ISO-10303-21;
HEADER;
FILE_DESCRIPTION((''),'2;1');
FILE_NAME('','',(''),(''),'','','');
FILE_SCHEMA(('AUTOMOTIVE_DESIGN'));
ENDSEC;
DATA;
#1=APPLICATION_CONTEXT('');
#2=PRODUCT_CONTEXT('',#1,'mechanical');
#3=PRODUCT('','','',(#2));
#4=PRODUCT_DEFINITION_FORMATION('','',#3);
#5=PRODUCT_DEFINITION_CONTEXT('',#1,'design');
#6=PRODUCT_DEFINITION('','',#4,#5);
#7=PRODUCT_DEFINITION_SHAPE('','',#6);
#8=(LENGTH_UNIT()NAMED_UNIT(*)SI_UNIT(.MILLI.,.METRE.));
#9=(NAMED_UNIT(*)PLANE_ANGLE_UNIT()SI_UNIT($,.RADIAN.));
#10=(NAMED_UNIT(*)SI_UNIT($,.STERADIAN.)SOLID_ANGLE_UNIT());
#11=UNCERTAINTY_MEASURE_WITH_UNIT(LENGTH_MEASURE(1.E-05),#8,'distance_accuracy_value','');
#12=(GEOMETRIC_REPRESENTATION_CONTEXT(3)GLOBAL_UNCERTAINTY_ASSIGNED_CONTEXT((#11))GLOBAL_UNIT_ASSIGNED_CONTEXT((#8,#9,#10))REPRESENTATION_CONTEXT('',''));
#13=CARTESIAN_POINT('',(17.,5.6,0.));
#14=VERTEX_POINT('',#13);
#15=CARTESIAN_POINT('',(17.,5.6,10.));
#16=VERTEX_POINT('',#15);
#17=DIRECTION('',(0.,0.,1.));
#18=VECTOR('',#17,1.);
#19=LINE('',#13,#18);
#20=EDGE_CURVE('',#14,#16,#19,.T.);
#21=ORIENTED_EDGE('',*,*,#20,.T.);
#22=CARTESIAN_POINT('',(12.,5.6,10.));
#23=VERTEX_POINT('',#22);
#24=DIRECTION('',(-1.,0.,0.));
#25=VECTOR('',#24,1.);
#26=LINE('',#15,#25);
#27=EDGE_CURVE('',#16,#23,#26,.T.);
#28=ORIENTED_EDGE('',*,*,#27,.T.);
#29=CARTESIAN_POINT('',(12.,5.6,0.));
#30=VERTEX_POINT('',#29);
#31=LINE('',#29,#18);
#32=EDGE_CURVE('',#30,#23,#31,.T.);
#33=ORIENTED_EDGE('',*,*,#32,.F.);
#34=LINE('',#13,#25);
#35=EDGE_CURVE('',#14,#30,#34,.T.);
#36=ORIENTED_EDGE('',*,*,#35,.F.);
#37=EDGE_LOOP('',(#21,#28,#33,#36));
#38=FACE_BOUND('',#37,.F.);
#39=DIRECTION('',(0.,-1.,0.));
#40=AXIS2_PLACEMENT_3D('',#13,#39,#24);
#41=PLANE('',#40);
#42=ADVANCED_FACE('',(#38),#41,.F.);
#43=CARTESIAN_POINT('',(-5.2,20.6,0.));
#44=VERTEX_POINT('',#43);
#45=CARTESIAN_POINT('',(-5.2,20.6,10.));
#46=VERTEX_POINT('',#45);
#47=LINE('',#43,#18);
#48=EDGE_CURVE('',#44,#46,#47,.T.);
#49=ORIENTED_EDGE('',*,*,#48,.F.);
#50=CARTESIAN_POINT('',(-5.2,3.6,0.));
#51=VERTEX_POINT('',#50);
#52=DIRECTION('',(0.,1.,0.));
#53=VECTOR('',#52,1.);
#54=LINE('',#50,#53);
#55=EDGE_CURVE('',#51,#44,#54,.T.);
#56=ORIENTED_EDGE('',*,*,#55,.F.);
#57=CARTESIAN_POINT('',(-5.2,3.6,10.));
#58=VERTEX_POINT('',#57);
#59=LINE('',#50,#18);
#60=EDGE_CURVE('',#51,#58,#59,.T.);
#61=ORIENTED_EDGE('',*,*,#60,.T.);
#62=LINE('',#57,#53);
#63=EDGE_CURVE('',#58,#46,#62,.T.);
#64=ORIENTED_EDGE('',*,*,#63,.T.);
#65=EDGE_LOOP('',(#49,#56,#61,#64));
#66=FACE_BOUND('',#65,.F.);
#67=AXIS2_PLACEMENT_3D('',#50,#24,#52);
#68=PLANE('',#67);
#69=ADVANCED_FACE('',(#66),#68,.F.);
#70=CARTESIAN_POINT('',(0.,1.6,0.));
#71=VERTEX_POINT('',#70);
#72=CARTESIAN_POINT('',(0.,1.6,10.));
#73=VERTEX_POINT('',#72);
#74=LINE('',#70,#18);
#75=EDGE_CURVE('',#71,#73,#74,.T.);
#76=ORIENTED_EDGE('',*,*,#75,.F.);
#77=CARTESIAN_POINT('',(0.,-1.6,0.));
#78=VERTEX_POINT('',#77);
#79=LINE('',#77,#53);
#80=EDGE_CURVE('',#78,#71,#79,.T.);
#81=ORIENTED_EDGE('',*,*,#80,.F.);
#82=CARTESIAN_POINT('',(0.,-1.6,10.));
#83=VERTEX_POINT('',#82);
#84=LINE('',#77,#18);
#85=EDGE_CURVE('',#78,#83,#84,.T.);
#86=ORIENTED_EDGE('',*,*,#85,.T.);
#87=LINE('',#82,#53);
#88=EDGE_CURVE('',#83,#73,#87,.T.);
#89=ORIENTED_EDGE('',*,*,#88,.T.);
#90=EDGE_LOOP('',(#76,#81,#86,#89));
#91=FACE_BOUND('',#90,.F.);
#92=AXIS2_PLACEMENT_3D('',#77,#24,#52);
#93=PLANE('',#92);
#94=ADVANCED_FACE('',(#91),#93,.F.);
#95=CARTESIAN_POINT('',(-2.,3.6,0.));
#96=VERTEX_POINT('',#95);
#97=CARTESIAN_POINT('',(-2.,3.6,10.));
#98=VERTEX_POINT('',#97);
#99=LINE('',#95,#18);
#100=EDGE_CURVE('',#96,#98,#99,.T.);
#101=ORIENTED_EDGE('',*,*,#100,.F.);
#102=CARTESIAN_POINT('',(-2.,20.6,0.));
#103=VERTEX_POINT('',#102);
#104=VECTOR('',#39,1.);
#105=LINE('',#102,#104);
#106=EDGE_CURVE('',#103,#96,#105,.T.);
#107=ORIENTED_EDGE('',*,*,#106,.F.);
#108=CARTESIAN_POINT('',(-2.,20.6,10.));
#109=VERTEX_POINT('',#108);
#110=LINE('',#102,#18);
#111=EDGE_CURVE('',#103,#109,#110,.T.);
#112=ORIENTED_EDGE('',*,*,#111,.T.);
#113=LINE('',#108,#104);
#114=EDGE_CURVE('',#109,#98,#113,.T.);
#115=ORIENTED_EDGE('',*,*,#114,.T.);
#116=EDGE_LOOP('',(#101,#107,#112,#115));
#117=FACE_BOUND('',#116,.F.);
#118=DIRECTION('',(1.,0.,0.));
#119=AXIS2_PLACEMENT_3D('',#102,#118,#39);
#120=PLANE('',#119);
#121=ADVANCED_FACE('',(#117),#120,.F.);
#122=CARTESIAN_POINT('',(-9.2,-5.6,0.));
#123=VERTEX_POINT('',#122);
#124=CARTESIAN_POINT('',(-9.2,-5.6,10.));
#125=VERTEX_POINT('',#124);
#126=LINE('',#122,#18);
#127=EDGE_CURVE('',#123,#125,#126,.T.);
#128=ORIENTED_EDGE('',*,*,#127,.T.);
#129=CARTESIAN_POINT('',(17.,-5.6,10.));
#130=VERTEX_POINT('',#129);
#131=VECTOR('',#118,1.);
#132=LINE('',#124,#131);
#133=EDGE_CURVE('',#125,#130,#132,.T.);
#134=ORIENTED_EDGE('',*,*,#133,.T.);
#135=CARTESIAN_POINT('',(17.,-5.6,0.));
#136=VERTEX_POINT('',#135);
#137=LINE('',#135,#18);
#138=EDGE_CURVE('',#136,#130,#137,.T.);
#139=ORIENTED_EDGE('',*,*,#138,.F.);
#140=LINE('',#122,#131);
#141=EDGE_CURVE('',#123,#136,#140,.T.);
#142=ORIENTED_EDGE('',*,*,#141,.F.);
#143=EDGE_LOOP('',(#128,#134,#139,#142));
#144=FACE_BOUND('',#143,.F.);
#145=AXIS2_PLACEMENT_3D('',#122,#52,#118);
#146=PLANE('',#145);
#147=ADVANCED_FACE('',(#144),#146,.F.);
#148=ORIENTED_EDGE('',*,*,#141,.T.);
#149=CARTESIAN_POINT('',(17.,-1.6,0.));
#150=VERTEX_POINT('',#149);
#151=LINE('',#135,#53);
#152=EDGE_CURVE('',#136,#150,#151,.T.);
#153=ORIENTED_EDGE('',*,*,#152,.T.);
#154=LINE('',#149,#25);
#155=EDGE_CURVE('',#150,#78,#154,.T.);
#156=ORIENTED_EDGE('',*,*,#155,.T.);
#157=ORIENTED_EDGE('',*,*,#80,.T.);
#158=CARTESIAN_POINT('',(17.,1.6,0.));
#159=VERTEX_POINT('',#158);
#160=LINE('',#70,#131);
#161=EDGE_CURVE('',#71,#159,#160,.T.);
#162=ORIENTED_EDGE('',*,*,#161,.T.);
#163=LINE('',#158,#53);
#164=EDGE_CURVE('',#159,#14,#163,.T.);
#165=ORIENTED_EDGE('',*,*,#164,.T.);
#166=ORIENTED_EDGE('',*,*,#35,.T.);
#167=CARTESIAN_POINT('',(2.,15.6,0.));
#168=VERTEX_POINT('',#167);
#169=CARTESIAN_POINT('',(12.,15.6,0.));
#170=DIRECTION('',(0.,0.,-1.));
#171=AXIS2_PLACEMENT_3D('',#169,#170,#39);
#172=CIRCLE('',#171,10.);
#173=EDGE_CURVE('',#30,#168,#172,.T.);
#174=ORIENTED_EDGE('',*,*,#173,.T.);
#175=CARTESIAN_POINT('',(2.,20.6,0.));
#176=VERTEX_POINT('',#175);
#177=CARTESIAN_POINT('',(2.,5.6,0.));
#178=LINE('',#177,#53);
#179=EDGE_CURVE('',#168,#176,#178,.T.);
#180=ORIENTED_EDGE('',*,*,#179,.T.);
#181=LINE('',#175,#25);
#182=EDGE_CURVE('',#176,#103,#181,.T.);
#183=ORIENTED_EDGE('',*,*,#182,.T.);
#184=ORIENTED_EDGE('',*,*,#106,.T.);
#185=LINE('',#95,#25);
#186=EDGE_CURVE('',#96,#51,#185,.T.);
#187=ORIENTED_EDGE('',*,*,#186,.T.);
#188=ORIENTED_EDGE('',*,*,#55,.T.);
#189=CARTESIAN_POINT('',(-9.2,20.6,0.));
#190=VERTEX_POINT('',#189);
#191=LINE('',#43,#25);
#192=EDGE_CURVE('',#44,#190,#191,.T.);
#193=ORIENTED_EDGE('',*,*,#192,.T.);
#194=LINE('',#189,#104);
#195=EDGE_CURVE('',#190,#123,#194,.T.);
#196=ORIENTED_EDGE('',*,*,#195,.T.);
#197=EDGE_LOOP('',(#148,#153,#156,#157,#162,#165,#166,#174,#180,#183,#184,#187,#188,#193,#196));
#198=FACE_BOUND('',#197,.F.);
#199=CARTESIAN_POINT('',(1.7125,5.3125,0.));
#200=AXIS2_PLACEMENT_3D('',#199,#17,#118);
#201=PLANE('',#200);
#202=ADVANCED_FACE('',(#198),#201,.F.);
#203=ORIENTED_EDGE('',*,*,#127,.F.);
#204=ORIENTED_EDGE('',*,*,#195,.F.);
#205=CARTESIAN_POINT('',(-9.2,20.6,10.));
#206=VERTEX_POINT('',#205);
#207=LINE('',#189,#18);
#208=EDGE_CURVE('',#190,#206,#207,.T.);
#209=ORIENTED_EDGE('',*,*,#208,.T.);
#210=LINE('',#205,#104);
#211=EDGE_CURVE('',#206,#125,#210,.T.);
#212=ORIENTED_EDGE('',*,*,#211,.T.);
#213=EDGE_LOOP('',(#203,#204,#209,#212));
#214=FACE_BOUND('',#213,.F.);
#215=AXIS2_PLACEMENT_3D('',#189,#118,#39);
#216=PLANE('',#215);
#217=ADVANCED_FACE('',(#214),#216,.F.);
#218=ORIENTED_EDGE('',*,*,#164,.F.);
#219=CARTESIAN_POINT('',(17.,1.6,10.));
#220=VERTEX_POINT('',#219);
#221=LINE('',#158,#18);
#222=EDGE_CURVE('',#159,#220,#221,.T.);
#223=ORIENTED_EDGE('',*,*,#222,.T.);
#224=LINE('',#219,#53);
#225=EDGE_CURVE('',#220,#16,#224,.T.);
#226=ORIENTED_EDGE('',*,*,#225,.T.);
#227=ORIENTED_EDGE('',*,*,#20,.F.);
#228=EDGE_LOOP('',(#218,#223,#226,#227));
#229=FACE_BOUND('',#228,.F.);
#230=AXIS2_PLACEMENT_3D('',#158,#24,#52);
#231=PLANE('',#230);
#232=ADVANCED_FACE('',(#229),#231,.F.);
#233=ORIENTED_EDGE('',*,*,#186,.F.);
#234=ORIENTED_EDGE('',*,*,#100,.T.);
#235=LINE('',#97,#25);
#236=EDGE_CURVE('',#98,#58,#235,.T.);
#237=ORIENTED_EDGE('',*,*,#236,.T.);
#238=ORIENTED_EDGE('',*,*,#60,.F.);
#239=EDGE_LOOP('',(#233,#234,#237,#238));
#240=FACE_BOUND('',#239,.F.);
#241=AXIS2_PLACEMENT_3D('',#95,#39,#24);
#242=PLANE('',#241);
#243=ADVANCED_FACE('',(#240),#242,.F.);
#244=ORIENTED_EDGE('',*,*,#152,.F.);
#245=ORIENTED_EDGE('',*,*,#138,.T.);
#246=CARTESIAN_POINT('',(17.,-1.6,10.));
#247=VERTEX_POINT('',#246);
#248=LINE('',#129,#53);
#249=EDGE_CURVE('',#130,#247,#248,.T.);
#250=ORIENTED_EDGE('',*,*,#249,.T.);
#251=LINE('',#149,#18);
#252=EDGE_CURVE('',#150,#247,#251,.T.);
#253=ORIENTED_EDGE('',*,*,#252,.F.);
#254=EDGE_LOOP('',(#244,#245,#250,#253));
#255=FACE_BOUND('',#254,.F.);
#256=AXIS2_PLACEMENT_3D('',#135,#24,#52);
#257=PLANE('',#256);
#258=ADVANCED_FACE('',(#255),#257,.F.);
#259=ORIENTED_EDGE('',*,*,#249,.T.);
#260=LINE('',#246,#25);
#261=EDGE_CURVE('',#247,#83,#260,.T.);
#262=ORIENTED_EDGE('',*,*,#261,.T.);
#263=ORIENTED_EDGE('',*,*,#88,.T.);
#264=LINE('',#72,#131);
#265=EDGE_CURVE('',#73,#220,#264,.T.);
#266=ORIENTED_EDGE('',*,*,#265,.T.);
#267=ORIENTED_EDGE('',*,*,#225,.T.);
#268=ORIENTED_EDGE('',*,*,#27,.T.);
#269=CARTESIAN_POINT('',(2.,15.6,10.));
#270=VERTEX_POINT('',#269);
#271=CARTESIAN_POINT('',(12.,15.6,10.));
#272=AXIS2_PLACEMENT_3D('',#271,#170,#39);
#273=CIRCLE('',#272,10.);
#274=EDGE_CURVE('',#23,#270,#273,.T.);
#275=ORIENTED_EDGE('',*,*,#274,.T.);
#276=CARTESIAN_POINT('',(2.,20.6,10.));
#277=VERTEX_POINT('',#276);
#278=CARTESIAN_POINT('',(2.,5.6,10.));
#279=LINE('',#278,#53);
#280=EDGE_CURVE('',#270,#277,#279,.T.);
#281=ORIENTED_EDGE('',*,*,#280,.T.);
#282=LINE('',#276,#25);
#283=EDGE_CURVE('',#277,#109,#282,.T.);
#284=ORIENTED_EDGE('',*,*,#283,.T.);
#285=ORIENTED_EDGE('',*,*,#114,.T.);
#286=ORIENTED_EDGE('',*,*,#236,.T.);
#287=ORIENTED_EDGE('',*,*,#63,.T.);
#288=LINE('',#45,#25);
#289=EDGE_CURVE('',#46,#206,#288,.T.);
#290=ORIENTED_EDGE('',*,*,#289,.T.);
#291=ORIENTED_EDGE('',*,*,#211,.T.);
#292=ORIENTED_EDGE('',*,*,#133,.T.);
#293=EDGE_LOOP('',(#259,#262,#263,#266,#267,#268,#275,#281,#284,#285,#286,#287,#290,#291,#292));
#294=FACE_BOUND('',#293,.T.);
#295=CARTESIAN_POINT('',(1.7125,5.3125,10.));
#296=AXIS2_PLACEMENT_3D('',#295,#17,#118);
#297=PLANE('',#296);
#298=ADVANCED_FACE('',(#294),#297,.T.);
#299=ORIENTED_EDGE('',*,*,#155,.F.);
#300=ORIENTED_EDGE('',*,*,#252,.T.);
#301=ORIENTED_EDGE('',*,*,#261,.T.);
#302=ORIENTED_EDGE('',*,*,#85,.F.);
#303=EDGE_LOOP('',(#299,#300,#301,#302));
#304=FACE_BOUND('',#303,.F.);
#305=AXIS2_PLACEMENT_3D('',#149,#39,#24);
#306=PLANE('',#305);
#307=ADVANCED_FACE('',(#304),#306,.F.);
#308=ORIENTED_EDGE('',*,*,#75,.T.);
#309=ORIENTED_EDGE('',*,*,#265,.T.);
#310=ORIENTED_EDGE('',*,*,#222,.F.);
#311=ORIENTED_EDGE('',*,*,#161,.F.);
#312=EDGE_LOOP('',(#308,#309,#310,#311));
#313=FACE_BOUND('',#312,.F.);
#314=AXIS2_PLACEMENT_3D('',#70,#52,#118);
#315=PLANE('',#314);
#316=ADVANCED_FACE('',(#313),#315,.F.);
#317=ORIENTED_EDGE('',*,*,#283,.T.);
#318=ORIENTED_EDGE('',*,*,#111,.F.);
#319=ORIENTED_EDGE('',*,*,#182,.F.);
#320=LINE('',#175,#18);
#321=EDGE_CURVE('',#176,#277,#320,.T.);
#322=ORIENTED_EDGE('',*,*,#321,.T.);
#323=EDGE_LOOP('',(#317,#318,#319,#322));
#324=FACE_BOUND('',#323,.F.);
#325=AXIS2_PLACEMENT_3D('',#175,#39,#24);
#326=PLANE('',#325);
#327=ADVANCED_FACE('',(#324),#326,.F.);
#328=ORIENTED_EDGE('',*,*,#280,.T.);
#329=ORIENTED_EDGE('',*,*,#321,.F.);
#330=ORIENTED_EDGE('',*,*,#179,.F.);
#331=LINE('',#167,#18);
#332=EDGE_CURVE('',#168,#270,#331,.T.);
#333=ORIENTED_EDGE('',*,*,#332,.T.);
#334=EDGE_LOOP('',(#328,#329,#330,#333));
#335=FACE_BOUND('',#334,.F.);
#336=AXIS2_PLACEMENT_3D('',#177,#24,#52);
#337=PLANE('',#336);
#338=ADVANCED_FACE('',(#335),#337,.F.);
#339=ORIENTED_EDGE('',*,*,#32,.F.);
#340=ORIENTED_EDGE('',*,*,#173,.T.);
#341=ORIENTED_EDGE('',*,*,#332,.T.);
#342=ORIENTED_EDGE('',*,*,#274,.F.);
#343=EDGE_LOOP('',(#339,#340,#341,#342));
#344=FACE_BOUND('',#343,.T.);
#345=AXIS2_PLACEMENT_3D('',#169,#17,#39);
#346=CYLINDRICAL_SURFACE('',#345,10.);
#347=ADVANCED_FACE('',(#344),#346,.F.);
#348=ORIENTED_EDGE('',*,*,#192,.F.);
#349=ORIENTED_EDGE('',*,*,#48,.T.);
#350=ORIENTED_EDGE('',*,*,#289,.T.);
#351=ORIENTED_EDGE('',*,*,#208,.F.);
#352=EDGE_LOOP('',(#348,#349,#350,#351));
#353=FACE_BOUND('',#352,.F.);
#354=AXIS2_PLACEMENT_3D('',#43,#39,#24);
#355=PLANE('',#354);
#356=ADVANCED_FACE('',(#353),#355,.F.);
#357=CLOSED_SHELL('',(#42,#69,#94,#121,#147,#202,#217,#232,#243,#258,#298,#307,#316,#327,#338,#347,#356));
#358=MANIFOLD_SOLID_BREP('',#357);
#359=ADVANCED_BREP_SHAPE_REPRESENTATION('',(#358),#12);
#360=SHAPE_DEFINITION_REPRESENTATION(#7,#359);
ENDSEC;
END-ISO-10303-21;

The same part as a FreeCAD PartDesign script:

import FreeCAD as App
import Part
import Sketcher
from FreeCAD import Vector
Q = App.Units.Quantity


def edges_at(feature, points):
    """Names of the edges that pass closest to the given points."""
    edges = feature.Shape.Edges
    near = lambda p: min(range(len(edges)), key=lambda i: edges[i].distToShape(Part.Vertex(*p))[0])
    return sorted({f"Edge{near(p) + 1}" for p in points})


def add_polygon(sketch, points):
    """Adds a closed chain of lines whose ends are joined by coincident constraints."""
    first, n = sketch.GeometryCount, len(points)
    for a, b in zip(points, points[1:] + points[:1]):
        sketch.addGeometry(Part.LineSegment(App.Vector(*a, 0), App.Vector(*b, 0)), False)
    for i in range(n):
        sketch.addConstraint(Sketcher.Constraint("Coincident", first + i, 2, first + (i + 1) % n, 1))

doc = App.newDocument("Part")
body = doc.addObject("PartDesign::Body", "Body")

# Sketch on XY plane
sketch1 = body.newObject("Sketcher::SketchObject", "Sketch")
sketch1.AttachmentSupport = (doc.getObject("XY_Plane"), [""])
sketch1.MapMode = "FlatFace"
add_polygon(sketch1, [(2, 20.6), (-2, 20.6), (-2, 3.6), (-5.2, 3.6), (-5.2, 20.6), (-9.2, 20.6), (-9.2, -5.6), (17, -5.6), (17, -1.6), (0, -1.6), (0, 1.6), (17, 1.6), (17, 5.6), (2, 5.6)])  # lines 0-13
sketch1.addConstraint([
    Sketcher.Constraint("Horizontal", 0),
    Sketcher.Constraint("Vertical", 1),
    Sketcher.Constraint("Horizontal", 2),
    Sketcher.Constraint("Vertical", 3),
    Sketcher.Constraint("Horizontal", 4),
    Sketcher.Constraint("Vertical", 5),
    Sketcher.Constraint("Horizontal", 6),
    Sketcher.Constraint("Vertical", 7),
    Sketcher.Constraint("Horizontal", 8),
    Sketcher.Constraint("Vertical", 9),
    Sketcher.Constraint("Horizontal", 10),
    Sketcher.Constraint("Vertical", 11),
    Sketcher.Constraint("Horizontal", 12),
    Sketcher.Constraint("Vertical", 13),
    Sketcher.Constraint("Symmetric", 8, 2, 9, 2, -1, 1),
    Sketcher.Constraint("Symmetric", 6, 2, 11, 2, -1),
    Sketcher.Constraint("Horizontal", 0, 2, 3, 2),
    Sketcher.Constraint("Equal", 0, 4),
    Sketcher.Constraint("Equal", 10, 1),
    Sketcher.Constraint("Equal", 6, 5),
    Sketcher.Constraint("Equal", 4, 7),
    Sketcher.Constraint("Equal", 2, 9),
    Sketcher.Constraint("DistanceX", 0, 2, 0, 1, Q("4 mm")),
    Sketcher.Constraint("DistanceX", 8, 2, 8, 1, Q("17 mm")),
    Sketcher.Constraint("DistanceX", 12, 2, 12, 1, Q("15 mm")),
    Sketcher.Constraint("DistanceX", 2, 2, 2, 1, Q("3.2 mm")),
])
pad1 = body.newObject("PartDesign::Pad", "Pad")
pad1.Profile = sketch1
pad1.Length = 10
doc.recompute()

fillet = body.newObject("PartDesign::Fillet", "Fillet")
fillet.Base = (pad1, edges_at(pad1, [(2, 5.6, 5)]))
fillet.Radius = 10

doc.recompute()
